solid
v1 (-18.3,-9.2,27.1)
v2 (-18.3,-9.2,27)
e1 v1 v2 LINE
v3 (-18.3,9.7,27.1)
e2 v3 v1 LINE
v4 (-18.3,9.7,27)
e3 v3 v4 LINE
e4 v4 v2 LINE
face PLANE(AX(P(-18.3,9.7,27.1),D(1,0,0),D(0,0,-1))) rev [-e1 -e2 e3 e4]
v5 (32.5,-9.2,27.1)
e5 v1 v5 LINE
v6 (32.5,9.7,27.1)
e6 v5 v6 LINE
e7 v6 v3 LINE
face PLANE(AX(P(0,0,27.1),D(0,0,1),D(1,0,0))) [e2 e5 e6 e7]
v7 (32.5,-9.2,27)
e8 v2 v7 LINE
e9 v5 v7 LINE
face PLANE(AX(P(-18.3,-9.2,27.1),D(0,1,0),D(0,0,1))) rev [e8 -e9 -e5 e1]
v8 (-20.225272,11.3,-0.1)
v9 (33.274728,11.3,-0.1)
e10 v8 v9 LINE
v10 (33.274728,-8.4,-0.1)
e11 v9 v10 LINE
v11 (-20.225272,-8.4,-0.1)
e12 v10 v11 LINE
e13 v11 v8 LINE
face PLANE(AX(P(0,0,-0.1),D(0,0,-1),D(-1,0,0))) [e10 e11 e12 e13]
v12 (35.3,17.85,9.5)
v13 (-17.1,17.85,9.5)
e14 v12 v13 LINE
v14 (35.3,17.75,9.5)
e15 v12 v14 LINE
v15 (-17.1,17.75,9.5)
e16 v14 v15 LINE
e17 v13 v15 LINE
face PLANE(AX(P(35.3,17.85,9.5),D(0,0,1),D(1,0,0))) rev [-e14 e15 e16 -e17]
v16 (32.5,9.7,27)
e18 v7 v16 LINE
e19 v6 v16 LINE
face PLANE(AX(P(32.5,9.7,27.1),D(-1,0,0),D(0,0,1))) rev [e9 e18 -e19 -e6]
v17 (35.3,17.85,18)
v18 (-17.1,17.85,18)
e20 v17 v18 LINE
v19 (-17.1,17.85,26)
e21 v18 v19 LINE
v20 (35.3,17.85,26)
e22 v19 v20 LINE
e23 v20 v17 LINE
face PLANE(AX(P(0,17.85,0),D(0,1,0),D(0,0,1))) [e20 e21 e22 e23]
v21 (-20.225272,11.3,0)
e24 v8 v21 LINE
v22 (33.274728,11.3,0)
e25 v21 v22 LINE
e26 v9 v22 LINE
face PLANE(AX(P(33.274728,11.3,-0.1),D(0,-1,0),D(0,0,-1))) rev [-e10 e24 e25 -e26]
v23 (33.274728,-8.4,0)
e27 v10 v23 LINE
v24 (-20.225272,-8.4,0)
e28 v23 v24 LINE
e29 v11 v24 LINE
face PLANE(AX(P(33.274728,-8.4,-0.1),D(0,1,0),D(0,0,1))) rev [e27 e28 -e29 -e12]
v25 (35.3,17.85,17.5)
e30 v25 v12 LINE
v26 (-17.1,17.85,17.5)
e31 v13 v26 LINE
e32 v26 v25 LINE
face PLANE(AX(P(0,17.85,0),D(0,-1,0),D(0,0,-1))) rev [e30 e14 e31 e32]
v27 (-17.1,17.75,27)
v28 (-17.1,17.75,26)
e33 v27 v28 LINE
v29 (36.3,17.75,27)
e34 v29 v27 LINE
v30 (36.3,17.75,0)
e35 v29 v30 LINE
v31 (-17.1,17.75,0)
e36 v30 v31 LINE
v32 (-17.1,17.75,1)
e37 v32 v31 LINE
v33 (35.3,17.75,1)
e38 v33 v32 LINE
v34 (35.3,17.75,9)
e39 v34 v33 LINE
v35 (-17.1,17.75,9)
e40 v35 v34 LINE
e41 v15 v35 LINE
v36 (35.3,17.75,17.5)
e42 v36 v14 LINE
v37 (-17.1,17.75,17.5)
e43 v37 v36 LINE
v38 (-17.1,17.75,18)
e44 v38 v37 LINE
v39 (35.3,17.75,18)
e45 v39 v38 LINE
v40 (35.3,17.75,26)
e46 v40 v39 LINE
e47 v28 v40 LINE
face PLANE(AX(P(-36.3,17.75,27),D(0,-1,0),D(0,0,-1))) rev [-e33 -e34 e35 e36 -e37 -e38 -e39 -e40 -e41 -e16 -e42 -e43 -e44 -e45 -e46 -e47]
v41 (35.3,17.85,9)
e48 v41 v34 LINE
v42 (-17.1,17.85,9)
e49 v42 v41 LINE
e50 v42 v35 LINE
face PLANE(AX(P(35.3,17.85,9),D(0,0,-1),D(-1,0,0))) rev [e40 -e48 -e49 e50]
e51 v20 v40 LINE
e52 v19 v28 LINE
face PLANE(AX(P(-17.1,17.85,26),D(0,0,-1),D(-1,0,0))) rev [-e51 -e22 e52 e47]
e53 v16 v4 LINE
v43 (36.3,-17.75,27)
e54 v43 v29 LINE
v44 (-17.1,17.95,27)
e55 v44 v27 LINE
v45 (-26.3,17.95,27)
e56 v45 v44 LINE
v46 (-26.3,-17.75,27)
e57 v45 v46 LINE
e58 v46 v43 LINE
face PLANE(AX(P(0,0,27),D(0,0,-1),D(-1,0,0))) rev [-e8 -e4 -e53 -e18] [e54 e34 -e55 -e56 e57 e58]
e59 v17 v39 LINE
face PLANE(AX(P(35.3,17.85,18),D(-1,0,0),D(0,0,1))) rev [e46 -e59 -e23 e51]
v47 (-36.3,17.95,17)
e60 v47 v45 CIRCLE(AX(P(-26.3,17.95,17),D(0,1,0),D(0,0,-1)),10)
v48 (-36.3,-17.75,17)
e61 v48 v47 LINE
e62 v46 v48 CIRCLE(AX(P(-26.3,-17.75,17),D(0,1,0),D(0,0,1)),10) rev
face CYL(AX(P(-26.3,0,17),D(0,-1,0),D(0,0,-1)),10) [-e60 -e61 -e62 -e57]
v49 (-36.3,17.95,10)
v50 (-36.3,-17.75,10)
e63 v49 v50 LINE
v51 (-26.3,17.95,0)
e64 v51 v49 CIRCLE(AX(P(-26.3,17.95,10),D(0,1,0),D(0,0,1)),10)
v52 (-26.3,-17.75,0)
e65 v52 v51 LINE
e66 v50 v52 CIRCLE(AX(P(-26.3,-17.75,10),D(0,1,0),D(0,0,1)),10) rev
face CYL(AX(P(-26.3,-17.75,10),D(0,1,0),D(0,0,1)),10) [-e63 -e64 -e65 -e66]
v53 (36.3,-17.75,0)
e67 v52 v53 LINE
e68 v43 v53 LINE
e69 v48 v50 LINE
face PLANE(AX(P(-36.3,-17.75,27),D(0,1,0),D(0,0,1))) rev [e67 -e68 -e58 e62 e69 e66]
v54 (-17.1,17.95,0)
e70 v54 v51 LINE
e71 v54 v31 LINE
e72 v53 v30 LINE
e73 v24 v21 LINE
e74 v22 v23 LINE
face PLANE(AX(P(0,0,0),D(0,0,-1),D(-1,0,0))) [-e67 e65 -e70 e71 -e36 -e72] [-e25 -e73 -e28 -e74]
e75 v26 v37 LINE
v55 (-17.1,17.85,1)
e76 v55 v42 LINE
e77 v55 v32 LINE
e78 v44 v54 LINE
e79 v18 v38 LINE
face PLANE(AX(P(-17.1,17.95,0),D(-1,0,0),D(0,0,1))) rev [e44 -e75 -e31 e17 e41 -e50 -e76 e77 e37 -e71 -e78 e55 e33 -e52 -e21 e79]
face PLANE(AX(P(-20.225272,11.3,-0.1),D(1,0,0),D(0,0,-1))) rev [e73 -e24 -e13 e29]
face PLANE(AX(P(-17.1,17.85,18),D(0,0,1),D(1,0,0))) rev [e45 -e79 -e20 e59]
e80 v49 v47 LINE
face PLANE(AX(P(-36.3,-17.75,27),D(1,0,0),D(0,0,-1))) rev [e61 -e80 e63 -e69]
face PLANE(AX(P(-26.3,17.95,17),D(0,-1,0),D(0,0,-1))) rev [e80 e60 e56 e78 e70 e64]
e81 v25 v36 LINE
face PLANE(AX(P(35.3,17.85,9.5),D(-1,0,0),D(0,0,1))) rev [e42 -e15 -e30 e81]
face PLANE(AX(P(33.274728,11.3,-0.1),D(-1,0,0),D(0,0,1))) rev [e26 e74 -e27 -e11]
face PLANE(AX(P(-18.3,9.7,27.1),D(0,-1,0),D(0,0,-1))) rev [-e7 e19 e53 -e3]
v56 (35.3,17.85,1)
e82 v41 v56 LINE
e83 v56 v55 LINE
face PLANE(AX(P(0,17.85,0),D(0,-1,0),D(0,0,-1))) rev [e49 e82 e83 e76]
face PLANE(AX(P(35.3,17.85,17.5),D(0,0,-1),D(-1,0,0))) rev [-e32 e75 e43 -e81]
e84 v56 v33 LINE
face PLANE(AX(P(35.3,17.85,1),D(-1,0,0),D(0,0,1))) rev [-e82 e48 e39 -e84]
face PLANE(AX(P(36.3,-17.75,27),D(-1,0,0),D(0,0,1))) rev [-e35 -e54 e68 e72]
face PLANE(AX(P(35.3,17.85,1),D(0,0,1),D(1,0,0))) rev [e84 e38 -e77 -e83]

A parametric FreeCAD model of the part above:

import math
import FreeCAD as App
import Part
import Sketcher
Q = App.Units.Quantity


def edges_at(feature, points):
    """Names of the edges that pass closest to the given points."""
    edges = feature.Shape.Edges
    near = lambda p: min(range(len(edges)), key=lambda i: edges[i].distToShape(Part.Vertex(*p))[0])
    return sorted({f"Edge{near(p) + 1}" for p in points})

doc = App.newDocument("Part")
body = doc.addObject("PartDesign::Body", "Body")

# Sketch on XY plane
sketch1 = doc.addObject("Sketcher::SketchObject", "Sketch")
body.addObject(sketch1)
sketch1.AttachmentSupport = (doc.XY_Plane, [""])
sketch1.MapMode = "FlatFace"
sketch1.addGeometry(Part.LineSegment(App.Vector(-36.3, 17.75, 0), App.Vector(-36.3, -17.75, 0)), False)
sketch1.addGeometry(Part.LineSegment(App.Vector(-36.3, -17.75, 0), App.Vector(36.3, -17.75, 0)), False)
sketch1.addGeometry(Part.LineSegment(App.Vector(36.3, -17.75, 0), App.Vector(36.3, 17.75, 0)), False)
sketch1.addGeometry(Part.LineSegment(App.Vector(36.3, 17.75, 0), App.Vector(-36.3, 17.75, 0)), False)
sketch1.addConstraint(Sketcher.Constraint("Coincident", 0, 2, 1, 1))
sketch1.addConstraint(Sketcher.Constraint("Coincident", 1, 2, 2, 1))
sketch1.addConstraint(Sketcher.Constraint("Coincident", 2, 2, 3, 1))
sketch1.addConstraint(Sketcher.Constraint("Coincident", 3, 2, 0, 1))
sketch1.addConstraint(Sketcher.Constraint("Vertical", 0))
sketch1.addConstraint(Sketcher.Constraint("Horizontal", 1))
sketch1.addConstraint(Sketcher.Constraint("Vertical", 2))
sketch1.addConstraint(Sketcher.Constraint("Horizontal", 3))
sketch1.addConstraint(Sketcher.Constraint("Symmetric", 0, 2, 2, 2, -1, 1))
sketch1.addConstraint(Sketcher.Constraint("DistanceX", 1, 1, 1, 2, Q("72.6 mm")))
sketch1.addConstraint(Sketcher.Constraint("DistanceY", 0, 2, 0, 1, Q("35.5 mm")))
pad1 = doc.addObject("PartDesign::Pad", "Pad")
body.addObject(pad1)
pad1.Profile = sketch1
pad1.Length = 27
doc.recompute()

fillet = doc.addObject("PartDesign::Fillet", "Fillet")
body.addObject(fillet)
fillet.Base = (pad1, edges_at(pad1, [(-36.3, 0, 27), (-36.3, 0, 0)]))
fillet.Radius = 10

# Sketch on XZ plane
sketch2 = doc.addObject("Sketcher::SketchObject", "Sketch001")
body.addObject(sketch2)
sketch2.AttachmentSupport = (doc.XZ_Plane, [""])
sketch2.MapMode = "FlatFace"
sketch2.AttachmentOffset = App.Placement(App.Vector(0, 0, -17.75), App.Rotation())
sketch2.addGeometry(Part.LineSegment(App.Vector(-17.1, 1, 0), App.Vector(-17.1, 9, 0)), False)
sketch2.addGeometry(Part.LineSegment(App.Vector(-17.1, 9, 0), App.Vector(35.3, 9, 0)), False)
sketch2.addGeometry(Part.LineSegment(App.Vector(35.3, 9, 0), App.Vector(35.3, 1, 0)), False)
sketch2.addGeometry(Part.LineSegment(App.Vector(35.3, 1, 0), App.Vector(-17.1, 1, 0)), False)
sketch2.addGeometry(Part.LineSegment(App.Vector(-17.1, 9.5, 0), App.Vector(-17.1, 17.5, 0)), False)
sketch2.addGeometry(Part.LineSegment(App.Vector(-17.1, 17.5, 0), App.Vector(35.3, 17.5, 0)), False)
sketch2.addGeometry(Part.LineSegment(App.Vector(35.3, 17.5, 0), App.Vector(35.3, 9.5, 0)), False)
sketch2.addGeometry(Part.LineSegment(App.Vector(35.3, 9.5, 0), App.Vector(-17.1, 9.5, 0)), False)
sketch2.addGeometry(Part.LineSegment(App.Vector(-17.1, 18, 0), App.Vector(-17.1, 26, 0)), False)
sketch2.addGeometry(Part.LineSegment(App.Vector(-17.1, 26, 0), App.Vector(35.3, 26, 0)), False)
sketch2.addGeometry(Part.LineSegment(App.Vector(35.3, 26, 0), App.Vector(35.3, 18, 0)), False)
sketch2.addGeometry(Part.LineSegment(App.Vector(35.3, 18, 0), App.Vector(-17.1, 18, 0)), False)
sketch2.addConstraint(Sketcher.Constraint("Coincident", 0, 2, 1, 1))
sketch2.addConstraint(Sketcher.Constraint("Coincident", 1, 2, 2, 1))
sketch2.addConstraint(Sketcher.Constraint("Coincident", 2, 2, 3, 1))
sketch2.addConstraint(Sketcher.Constraint("Coincident", 3, 2, 0, 1))
sketch2.addConstraint(Sketcher.Constraint("Coincident", 4, 2, 5, 1))
sketch2.addConstraint(Sketcher.Constraint("Coincident", 5, 2, 6, 1))
sketch2.addConstraint(Sketcher.Constraint("Coincident", 6, 2, 7, 1))
sketch2.addConstraint(Sketcher.Constraint("Coincident", 7, 2, 4, 1))
sketch2.addConstraint(Sketcher.Constraint("Coincident", 8, 2, 9, 1))
sketch2.addConstraint(Sketcher.Constraint("Coincident", 9, 2, 10, 1))
sketch2.addConstraint(Sketcher.Constraint("Coincident", 10, 2, 11, 1))
sketch2.addConstraint(Sketcher.Constraint("Coincident", 11, 2, 8, 1))
sketch2.addConstraint(Sketcher.Constraint("Vertical", 0))
sketch2.addConstraint(Sketcher.Constraint("Horizontal", 1))
sketch2.addConstraint(Sketcher.Constraint("Vertical", 2))
sketch2.addConstraint(Sketcher.Constraint("Horizontal", 3))
sketch2.addConstraint(Sketcher.Constraint("Vertical", 4))
sketch2.addConstraint(Sketcher.Constraint("Horizontal", 5))
sketch2.addConstraint(Sketcher.Constraint("Vertical", 6))
sketch2.addConstraint(Sketcher.Constraint("Horizontal", 7))
sketch2.addConstraint(Sketcher.Constraint("Vertical", 8))
sketch2.addConstraint(Sketcher.Constraint("Horizontal", 9))
sketch2.addConstraint(Sketcher.Constraint("Vertical", 10))
sketch2.addConstraint(Sketcher.Constraint("Horizontal", 11))
sketch2.addConstraint(Sketcher.Constraint("Vertical", 3, 2, 4, 2))
sketch2.addConstraint(Sketcher.Constraint("Vertical", 2, 2, 5, 2))
sketch2.addConstraint(Sketcher.Constraint("Vertical", 7, 2, 8, 2))
sketch2.addConstraint(Sketcher.Constraint("Vertical", 6, 2, 9, 2))
sketch2.addConstraint(Sketcher.Constraint("Equal", 2, 4))
sketch2.addConstraint(Sketcher.Constraint("Equal", 6, 8))
sketch2.addConstraint(Sketcher.Constraint("DistanceY", 0, 1, 0, 2, Q("8 mm")))
sketch2.addConstraint(Sketcher.Constraint("DistanceX", 1, 1, 1, 2, Q("52.4 mm")))
sketch2.addConstraint(Sketcher.Constraint("DistanceY", -1, 1, 0, 2, Q("9 mm")))
sketch2.addConstraint(Sketcher.Constraint("DistanceY", -1, 1, 8, 2, Q("26 mm")))
sketch2.addConstraint(Sketcher.Constraint("DistanceX", 0, 2, -1, 1, Q("17.1 mm")))
sketch2.addConstraint(Sketcher.Constraint("DistanceY", -1, 1, 4, 2, Q("17.5 mm")))
pad2 = doc.addObject("PartDesign::Pad", "Pad001")
body.addObject(pad2)
pad2.Profile = sketch2
pad2.Length = 0.1
pad2.Reversed = True

# Sketch on XY plane
sketch3 = doc.addObject("Sketcher::SketchObject", "Sketch002")
body.addObject(sketch3)
sketch3.AttachmentSupport = (doc.XY_Plane, [""])
sketch3.MapMode = "FlatFace"
sketch3.AttachmentOffset = App.Placement(App.Vector(0, 0, 27), App.Rotation())
sketch3.addGeometry(Part.LineSegment(App.Vector(-18.3, 9.7, 0), App.Vector(-18.3, -9.2, 0)), False)
sketch3.addGeometry(Part.LineSegment(App.Vector(-18.3, -9.2, 0), App.Vector(32.5, -9.2, 0)), False)
sketch3.addGeometry(Part.LineSegment(App.Vector(32.5, -9.2, 0), App.Vector(32.5, 9.7, 0)), False)
sketch3.addGeometry(Part.LineSegment(App.Vector(32.5, 9.7, 0), App.Vector(-18.3, 9.7, 0)), False)
sketch3.addConstraint(Sketcher.Constraint("Coincident", 0, 2, 1, 1))
sketch3.addConstraint(Sketcher.Constraint("Coincident", 1, 2, 2, 1))
sketch3.addConstraint(Sketcher.Constraint("Coincident", 2, 2, 3, 1))
sketch3.addConstraint(Sketcher.Constraint("Coincident", 3, 2, 0, 1))
sketch3.addConstraint(Sketcher.Constraint("Vertical", 0))
sketch3.addConstraint(Sketcher.Constraint("Horizontal", 1))
sketch3.addConstraint(Sketcher.Constraint("Vertical", 2))
sketch3.addConstraint(Sketcher.Constraint("Horizontal", 3))
sketch3.addConstraint(Sketcher.Constraint("DistanceX", 1, 1, 1, 2, Q("50.8 mm")))
sketch3.addConstraint(Sketcher.Constraint("DistanceY", 0, 2, 0, 1, Q("18.9 mm")))
sketch3.addConstraint(Sketcher.Constraint("DistanceX", 0, 2, -1, 1, Q("18.3 mm")))
sketch3.addConstraint(Sketcher.Constraint("DistanceY", 0, 2, -1, 1, Q("9.2 mm")))
pad3 = doc.addObject("PartDesign::Pad", "Pad002")
body.addObject(pad3)
pad3.Profile = sketch3
pad3.Length = 0.1

# Sketch on XZ plane
sketch4 = doc.addObject("Sketcher::SketchObject", "Sketch003")
body.addObject(sketch4)
sketch4.AttachmentSupport = (doc.XZ_Plane, [""])
sketch4.MapMode = "FlatFace"
sketch4.AttachmentOffset = App.Placement(App.Vector(0, 0, -17.75), App.Rotation())
sketch4.addGeometry(Part.LineSegment(App.Vector(-17.1, 0, 0), App.Vector(-26.3, 0, 0)), False)
sketch4.addGeometry(Part.ArcOfCircle(Part.Circle(App.Vector(-26.3, 10, 0), App.Vector(0, 0, 1), 10), math.radians(180), math.radians(270)), False)
sketch4.addGeometry(Part.LineSegment(App.Vector(-36.3, 10, 0), App.Vector(-36.3, 17, 0)), False)
sketch4.addGeometry(Part.ArcOfCircle(Part.Circle(App.Vector(-26.3, 17, 0), App.Vector(0, 0, 1), 10), math.radians(90), math.radians(180)), False)
sketch4.addGeometry(Part.LineSegment(App.Vector(-26.3, 27, 0), App.Vector(-17.1, 27, 0)), False)
sketch4.addGeometry(Part.LineSegment(App.Vector(-17.1, 27, 0), App.Vector(-17.1, 0, 0)), False)
sketch4.addConstraint(Sketcher.Constraint("Tangent", 0, 2, 1, 2))
sketch4.addConstraint(Sketcher.Constraint("Tangent", 1, 1, 2, 1))
sketch4.addConstraint(Sketcher.Constraint("Tangent", 2, 2, 3, 2))
sketch4.addConstraint(Sketcher.Constraint("Tangent", 3, 1, 4, 1))
sketch4.addConstraint(Sketcher.Constraint("Coincident", 4, 2, 5, 1))
sketch4.addConstraint(Sketcher.Constraint("Coincident", 5, 2, 0, 1))
sketch4.addConstraint(Sketcher.Constraint("Horizontal", 0))
sketch4.addConstraint(Sketcher.Constraint("Vertical", 2))
sketch4.addConstraint(Sketcher.Constraint("Horizontal", 4))
sketch4.addConstraint(Sketcher.Constraint("Vertical", 5))
sketch4.addConstraint(Sketcher.Constraint("Equal", 1, 3))
sketch4.addConstraint(Sketcher.Constraint("PointOnObject", 0, 2, -1))
sketch4.addConstraint(Sketcher.Constraint("Radius", 1, Q("10 mm")))
sketch4.addConstraint(Sketcher.Constraint("DistanceY", 2, 1, 2, 2, Q("7 mm")))
sketch4.addConstraint(Sketcher.Constraint("DistanceX", 0, 2, 0, 1, Q("9.2 mm")))
sketch4.addConstraint(Sketcher.Constraint("DistanceX", 1, 3, -1, 1, Q("26.3 mm")))
pad4 = doc.addObject("PartDesign::Pad", "Pad003")
body.addObject(pad4)
pad4.Profile = sketch4
pad4.Length = 0.2
pad4.Reversed = True

# Sketch on XY plane
sketch5 = doc.addObject("Sketcher::SketchObject", "Sketch004")
body.addObject(sketch5)
sketch5.AttachmentSupport = (doc.XY_Plane, [""])
sketch5.MapMode = "FlatFace"
sketch5.addGeometry(Part.LineSegment(App.Vector(33.274728, 11.3, 0), App.Vector(33.274728, -8.4, 0)), False)
sketch5.addGeometry(Part.LineSegment(App.Vector(33.274728, -8.4, 0), App.Vector(-20.225272, -8.4, 0)), False)
sketch5.addGeometry(Part.LineSegment(App.Vector(-20.225272, -8.4, 0), App.Vector(-20.225272, 11.3, 0)), False)
sketch5.addGeometry(Part.LineSegment(App.Vector(-20.225272, 11.3, 0), App.Vector(33.274728, 11.3, 0)), False)
sketch5.addConstraint(Sketcher.Constraint("Coincident", 0, 2, 1, 1))
sketch5.addConstraint(Sketcher.Constraint("Coincident", 1, 2, 2, 1))
sketch5.addConstraint(Sketcher.Constraint("Coincident", 2, 2, 3, 1))
sketch5.addConstraint(Sketcher.Constraint("Coincident", 3, 2, 0, 1))
sketch5.addConstraint(Sketcher.Constraint("Vertical", 0))
sketch5.addConstraint(Sketcher.Constraint("Horizontal", 1))
sketch5.addConstraint(Sketcher.Constraint("Vertical", 2))
sketch5.addConstraint(Sketcher.Constraint("Horizontal", 3))
sketch5.addConstraint(Sketcher.Constraint("DistanceX", 1, 2, 1, 1, Q("53.5 mm")))
sketch5.addConstraint(Sketcher.Constraint("DistanceY", 0, 2, 0, 1, Q("19.7 mm")))
sketch5.addConstraint(Sketcher.Constraint("DistanceY", 0, 2, -1, 1, Q("8.4 mm")))
sketch5.addConstraint(Sketcher.Constraint("DistanceX", -1, 1, 0, 2, Q("33.274728 mm")))
pad5 = doc.addObject("PartDesign::Pad", "Pad004")
body.addObject(pad5)
pad5.Profile = sketch5
pad5.Length = 0.1
pad5.Reversed = True

doc.recompute()
